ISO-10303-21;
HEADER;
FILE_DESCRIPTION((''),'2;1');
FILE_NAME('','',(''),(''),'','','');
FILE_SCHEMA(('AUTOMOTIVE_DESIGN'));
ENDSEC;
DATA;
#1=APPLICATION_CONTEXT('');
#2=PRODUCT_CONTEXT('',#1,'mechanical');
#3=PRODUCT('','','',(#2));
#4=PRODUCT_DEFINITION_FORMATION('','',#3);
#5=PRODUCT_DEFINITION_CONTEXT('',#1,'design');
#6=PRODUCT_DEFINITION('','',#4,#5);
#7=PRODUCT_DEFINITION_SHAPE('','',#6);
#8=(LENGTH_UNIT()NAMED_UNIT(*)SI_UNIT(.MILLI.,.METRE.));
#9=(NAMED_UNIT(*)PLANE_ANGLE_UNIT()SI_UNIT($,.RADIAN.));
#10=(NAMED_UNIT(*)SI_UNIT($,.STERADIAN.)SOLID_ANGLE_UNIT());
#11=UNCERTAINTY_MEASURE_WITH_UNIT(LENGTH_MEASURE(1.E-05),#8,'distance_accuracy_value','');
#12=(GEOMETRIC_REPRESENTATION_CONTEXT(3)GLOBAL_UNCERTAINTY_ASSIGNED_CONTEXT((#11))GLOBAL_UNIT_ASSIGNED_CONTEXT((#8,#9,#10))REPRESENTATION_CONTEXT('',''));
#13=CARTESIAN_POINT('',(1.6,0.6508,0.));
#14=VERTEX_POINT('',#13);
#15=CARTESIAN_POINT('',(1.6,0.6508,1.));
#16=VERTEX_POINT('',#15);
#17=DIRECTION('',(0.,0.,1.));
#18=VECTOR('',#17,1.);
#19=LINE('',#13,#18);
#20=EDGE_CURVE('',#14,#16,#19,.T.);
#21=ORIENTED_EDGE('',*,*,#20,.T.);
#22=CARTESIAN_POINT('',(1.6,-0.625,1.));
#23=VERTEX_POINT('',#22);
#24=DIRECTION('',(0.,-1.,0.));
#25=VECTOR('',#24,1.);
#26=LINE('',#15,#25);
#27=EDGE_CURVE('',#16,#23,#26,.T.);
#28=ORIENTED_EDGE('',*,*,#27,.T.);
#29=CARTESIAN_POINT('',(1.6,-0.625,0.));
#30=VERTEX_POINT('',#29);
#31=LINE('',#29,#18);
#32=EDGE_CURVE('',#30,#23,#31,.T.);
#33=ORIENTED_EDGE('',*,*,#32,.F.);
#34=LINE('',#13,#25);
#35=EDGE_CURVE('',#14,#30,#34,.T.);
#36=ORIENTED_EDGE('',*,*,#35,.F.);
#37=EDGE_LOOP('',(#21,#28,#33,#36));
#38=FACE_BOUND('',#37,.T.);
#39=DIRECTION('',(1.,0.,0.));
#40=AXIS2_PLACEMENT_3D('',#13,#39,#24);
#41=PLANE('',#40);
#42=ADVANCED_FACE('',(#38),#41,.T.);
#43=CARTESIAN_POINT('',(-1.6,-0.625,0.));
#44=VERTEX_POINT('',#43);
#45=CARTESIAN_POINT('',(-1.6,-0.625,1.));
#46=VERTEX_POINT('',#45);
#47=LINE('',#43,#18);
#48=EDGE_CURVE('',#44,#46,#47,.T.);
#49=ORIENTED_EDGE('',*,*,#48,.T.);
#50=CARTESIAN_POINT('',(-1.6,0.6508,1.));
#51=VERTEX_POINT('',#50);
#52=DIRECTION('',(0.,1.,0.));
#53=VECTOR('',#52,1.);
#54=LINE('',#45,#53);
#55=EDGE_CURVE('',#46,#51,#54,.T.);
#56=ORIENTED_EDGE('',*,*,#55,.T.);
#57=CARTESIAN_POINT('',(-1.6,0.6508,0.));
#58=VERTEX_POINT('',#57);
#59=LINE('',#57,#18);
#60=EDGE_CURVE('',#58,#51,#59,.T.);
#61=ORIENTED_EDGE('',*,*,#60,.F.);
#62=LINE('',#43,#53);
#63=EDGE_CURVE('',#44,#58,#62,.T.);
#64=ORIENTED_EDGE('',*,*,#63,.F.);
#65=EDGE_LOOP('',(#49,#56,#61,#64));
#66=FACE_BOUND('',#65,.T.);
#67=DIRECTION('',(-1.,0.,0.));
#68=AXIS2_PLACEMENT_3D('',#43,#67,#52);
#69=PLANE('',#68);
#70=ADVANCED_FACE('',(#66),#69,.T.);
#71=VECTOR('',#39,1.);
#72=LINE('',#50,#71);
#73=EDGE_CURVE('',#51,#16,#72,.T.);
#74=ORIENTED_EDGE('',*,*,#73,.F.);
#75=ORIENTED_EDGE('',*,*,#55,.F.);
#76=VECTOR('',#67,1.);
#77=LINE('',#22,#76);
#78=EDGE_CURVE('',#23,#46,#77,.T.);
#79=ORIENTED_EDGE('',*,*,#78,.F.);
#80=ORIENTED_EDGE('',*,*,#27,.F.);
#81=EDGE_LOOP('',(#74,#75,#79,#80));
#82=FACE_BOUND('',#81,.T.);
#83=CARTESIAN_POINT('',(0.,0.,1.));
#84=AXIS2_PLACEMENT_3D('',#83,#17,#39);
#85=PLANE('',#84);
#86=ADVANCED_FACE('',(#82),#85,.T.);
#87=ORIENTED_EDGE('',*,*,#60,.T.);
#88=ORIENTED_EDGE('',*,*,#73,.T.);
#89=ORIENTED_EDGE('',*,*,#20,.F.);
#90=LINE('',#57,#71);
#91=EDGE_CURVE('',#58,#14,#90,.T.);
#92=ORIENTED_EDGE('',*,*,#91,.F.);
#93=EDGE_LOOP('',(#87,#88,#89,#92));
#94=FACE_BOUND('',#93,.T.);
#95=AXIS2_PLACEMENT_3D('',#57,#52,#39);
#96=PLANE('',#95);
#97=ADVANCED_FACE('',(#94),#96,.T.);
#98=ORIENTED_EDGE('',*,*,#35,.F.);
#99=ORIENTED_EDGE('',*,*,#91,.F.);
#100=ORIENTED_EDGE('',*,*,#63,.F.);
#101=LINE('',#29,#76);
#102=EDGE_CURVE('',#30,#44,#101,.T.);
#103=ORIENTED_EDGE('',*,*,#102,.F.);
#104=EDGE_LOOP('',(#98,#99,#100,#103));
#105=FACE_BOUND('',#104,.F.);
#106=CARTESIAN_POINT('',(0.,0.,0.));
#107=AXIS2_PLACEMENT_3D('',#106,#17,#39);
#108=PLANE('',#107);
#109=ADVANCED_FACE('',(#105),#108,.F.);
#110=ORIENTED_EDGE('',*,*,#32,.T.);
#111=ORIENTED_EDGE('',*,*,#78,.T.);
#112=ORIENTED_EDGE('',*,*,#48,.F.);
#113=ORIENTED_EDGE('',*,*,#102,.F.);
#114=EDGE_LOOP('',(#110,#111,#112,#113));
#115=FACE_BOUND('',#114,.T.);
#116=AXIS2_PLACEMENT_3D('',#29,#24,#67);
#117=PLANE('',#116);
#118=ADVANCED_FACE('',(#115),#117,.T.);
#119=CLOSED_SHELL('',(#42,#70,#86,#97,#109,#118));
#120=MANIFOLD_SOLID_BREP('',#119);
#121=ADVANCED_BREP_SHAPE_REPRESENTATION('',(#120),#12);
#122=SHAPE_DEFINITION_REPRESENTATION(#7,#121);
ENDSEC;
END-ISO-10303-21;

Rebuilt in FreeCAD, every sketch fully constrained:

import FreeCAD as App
import Part
import Sketcher

V = App.Vector


def add_polygon(sketch, points):
    """Adds a closed chain of lines whose ends are joined by coincident constraints."""
    first, n = sketch.GeometryCount, len(points)
    for a, b in zip(points, points[1:] + points[:1]):
        sketch.addGeometry(Part.LineSegment(App.Vector(*a, 0), App.Vector(*b, 0)), False)
    for i in range(n):
        sketch.addConstraint(Sketcher.Constraint("Coincident", first + i, 2, first + (i + 1) % n, 1))

doc = App.newDocument("Part")
params = doc.addObject("Spreadsheet::Sheet", "Params")
for row, (alias, value) in enumerate([
    ("sketch1_width", "3.2 mm"),
    ("pad1_length", "1 mm"),
], start=1):
    params.set(f"A{row}", alias)
    params.set(f"B{row}", "=" + value)
    params.setAlias(f"B{row}", alias)

body = doc.addObject("PartDesign::Body", "Body")

sketch1 = body.newObject("Sketcher::SketchObject", "Sketch")
sketch1.AttachmentSupport = (doc.getObject("XY_Plane"), [""])
sketch1.MapMode = "FlatFace"
add_polygon(sketch1, [(1.6, 0.6508), (-1.6, 0.6508), (-1.6, -0.625), (1.6, -0.625)])
sketch1.addConstraint(Sketcher.Constraint("Horizontal", 0))
sketch1.addConstraint(Sketcher.Constraint("Vertical", 1))
sketch1.addConstraint(Sketcher.Constraint("Horizontal", 2))
sketch1.addConstraint(Sketcher.Constraint("Vertical", 3))
sketch1.addConstraint(Sketcher.Constraint("DistanceX", 0, 2, 0, 1, 3.2))
sketch1.addConstraint(Sketcher.Constraint("DistanceX", 0, 2, -1, 1, 1.6))
sketch1.addConstraint(Sketcher.Constraint("DistanceY", 1, 2, 1, 1, 1.2758))
sketch1.addConstraint(Sketcher.Constraint("DistanceY", 1, 2, -1, 1, 0.625))
sketch1.setExpression("Constraints[8]", "Params.sketch1_width")
pad1 = body.newObject("PartDesign::Pad", "Pad")
pad1.Profile = sketch1
pad1.setExpression("Length", "Params.pad1_length")

doc.recompute()
